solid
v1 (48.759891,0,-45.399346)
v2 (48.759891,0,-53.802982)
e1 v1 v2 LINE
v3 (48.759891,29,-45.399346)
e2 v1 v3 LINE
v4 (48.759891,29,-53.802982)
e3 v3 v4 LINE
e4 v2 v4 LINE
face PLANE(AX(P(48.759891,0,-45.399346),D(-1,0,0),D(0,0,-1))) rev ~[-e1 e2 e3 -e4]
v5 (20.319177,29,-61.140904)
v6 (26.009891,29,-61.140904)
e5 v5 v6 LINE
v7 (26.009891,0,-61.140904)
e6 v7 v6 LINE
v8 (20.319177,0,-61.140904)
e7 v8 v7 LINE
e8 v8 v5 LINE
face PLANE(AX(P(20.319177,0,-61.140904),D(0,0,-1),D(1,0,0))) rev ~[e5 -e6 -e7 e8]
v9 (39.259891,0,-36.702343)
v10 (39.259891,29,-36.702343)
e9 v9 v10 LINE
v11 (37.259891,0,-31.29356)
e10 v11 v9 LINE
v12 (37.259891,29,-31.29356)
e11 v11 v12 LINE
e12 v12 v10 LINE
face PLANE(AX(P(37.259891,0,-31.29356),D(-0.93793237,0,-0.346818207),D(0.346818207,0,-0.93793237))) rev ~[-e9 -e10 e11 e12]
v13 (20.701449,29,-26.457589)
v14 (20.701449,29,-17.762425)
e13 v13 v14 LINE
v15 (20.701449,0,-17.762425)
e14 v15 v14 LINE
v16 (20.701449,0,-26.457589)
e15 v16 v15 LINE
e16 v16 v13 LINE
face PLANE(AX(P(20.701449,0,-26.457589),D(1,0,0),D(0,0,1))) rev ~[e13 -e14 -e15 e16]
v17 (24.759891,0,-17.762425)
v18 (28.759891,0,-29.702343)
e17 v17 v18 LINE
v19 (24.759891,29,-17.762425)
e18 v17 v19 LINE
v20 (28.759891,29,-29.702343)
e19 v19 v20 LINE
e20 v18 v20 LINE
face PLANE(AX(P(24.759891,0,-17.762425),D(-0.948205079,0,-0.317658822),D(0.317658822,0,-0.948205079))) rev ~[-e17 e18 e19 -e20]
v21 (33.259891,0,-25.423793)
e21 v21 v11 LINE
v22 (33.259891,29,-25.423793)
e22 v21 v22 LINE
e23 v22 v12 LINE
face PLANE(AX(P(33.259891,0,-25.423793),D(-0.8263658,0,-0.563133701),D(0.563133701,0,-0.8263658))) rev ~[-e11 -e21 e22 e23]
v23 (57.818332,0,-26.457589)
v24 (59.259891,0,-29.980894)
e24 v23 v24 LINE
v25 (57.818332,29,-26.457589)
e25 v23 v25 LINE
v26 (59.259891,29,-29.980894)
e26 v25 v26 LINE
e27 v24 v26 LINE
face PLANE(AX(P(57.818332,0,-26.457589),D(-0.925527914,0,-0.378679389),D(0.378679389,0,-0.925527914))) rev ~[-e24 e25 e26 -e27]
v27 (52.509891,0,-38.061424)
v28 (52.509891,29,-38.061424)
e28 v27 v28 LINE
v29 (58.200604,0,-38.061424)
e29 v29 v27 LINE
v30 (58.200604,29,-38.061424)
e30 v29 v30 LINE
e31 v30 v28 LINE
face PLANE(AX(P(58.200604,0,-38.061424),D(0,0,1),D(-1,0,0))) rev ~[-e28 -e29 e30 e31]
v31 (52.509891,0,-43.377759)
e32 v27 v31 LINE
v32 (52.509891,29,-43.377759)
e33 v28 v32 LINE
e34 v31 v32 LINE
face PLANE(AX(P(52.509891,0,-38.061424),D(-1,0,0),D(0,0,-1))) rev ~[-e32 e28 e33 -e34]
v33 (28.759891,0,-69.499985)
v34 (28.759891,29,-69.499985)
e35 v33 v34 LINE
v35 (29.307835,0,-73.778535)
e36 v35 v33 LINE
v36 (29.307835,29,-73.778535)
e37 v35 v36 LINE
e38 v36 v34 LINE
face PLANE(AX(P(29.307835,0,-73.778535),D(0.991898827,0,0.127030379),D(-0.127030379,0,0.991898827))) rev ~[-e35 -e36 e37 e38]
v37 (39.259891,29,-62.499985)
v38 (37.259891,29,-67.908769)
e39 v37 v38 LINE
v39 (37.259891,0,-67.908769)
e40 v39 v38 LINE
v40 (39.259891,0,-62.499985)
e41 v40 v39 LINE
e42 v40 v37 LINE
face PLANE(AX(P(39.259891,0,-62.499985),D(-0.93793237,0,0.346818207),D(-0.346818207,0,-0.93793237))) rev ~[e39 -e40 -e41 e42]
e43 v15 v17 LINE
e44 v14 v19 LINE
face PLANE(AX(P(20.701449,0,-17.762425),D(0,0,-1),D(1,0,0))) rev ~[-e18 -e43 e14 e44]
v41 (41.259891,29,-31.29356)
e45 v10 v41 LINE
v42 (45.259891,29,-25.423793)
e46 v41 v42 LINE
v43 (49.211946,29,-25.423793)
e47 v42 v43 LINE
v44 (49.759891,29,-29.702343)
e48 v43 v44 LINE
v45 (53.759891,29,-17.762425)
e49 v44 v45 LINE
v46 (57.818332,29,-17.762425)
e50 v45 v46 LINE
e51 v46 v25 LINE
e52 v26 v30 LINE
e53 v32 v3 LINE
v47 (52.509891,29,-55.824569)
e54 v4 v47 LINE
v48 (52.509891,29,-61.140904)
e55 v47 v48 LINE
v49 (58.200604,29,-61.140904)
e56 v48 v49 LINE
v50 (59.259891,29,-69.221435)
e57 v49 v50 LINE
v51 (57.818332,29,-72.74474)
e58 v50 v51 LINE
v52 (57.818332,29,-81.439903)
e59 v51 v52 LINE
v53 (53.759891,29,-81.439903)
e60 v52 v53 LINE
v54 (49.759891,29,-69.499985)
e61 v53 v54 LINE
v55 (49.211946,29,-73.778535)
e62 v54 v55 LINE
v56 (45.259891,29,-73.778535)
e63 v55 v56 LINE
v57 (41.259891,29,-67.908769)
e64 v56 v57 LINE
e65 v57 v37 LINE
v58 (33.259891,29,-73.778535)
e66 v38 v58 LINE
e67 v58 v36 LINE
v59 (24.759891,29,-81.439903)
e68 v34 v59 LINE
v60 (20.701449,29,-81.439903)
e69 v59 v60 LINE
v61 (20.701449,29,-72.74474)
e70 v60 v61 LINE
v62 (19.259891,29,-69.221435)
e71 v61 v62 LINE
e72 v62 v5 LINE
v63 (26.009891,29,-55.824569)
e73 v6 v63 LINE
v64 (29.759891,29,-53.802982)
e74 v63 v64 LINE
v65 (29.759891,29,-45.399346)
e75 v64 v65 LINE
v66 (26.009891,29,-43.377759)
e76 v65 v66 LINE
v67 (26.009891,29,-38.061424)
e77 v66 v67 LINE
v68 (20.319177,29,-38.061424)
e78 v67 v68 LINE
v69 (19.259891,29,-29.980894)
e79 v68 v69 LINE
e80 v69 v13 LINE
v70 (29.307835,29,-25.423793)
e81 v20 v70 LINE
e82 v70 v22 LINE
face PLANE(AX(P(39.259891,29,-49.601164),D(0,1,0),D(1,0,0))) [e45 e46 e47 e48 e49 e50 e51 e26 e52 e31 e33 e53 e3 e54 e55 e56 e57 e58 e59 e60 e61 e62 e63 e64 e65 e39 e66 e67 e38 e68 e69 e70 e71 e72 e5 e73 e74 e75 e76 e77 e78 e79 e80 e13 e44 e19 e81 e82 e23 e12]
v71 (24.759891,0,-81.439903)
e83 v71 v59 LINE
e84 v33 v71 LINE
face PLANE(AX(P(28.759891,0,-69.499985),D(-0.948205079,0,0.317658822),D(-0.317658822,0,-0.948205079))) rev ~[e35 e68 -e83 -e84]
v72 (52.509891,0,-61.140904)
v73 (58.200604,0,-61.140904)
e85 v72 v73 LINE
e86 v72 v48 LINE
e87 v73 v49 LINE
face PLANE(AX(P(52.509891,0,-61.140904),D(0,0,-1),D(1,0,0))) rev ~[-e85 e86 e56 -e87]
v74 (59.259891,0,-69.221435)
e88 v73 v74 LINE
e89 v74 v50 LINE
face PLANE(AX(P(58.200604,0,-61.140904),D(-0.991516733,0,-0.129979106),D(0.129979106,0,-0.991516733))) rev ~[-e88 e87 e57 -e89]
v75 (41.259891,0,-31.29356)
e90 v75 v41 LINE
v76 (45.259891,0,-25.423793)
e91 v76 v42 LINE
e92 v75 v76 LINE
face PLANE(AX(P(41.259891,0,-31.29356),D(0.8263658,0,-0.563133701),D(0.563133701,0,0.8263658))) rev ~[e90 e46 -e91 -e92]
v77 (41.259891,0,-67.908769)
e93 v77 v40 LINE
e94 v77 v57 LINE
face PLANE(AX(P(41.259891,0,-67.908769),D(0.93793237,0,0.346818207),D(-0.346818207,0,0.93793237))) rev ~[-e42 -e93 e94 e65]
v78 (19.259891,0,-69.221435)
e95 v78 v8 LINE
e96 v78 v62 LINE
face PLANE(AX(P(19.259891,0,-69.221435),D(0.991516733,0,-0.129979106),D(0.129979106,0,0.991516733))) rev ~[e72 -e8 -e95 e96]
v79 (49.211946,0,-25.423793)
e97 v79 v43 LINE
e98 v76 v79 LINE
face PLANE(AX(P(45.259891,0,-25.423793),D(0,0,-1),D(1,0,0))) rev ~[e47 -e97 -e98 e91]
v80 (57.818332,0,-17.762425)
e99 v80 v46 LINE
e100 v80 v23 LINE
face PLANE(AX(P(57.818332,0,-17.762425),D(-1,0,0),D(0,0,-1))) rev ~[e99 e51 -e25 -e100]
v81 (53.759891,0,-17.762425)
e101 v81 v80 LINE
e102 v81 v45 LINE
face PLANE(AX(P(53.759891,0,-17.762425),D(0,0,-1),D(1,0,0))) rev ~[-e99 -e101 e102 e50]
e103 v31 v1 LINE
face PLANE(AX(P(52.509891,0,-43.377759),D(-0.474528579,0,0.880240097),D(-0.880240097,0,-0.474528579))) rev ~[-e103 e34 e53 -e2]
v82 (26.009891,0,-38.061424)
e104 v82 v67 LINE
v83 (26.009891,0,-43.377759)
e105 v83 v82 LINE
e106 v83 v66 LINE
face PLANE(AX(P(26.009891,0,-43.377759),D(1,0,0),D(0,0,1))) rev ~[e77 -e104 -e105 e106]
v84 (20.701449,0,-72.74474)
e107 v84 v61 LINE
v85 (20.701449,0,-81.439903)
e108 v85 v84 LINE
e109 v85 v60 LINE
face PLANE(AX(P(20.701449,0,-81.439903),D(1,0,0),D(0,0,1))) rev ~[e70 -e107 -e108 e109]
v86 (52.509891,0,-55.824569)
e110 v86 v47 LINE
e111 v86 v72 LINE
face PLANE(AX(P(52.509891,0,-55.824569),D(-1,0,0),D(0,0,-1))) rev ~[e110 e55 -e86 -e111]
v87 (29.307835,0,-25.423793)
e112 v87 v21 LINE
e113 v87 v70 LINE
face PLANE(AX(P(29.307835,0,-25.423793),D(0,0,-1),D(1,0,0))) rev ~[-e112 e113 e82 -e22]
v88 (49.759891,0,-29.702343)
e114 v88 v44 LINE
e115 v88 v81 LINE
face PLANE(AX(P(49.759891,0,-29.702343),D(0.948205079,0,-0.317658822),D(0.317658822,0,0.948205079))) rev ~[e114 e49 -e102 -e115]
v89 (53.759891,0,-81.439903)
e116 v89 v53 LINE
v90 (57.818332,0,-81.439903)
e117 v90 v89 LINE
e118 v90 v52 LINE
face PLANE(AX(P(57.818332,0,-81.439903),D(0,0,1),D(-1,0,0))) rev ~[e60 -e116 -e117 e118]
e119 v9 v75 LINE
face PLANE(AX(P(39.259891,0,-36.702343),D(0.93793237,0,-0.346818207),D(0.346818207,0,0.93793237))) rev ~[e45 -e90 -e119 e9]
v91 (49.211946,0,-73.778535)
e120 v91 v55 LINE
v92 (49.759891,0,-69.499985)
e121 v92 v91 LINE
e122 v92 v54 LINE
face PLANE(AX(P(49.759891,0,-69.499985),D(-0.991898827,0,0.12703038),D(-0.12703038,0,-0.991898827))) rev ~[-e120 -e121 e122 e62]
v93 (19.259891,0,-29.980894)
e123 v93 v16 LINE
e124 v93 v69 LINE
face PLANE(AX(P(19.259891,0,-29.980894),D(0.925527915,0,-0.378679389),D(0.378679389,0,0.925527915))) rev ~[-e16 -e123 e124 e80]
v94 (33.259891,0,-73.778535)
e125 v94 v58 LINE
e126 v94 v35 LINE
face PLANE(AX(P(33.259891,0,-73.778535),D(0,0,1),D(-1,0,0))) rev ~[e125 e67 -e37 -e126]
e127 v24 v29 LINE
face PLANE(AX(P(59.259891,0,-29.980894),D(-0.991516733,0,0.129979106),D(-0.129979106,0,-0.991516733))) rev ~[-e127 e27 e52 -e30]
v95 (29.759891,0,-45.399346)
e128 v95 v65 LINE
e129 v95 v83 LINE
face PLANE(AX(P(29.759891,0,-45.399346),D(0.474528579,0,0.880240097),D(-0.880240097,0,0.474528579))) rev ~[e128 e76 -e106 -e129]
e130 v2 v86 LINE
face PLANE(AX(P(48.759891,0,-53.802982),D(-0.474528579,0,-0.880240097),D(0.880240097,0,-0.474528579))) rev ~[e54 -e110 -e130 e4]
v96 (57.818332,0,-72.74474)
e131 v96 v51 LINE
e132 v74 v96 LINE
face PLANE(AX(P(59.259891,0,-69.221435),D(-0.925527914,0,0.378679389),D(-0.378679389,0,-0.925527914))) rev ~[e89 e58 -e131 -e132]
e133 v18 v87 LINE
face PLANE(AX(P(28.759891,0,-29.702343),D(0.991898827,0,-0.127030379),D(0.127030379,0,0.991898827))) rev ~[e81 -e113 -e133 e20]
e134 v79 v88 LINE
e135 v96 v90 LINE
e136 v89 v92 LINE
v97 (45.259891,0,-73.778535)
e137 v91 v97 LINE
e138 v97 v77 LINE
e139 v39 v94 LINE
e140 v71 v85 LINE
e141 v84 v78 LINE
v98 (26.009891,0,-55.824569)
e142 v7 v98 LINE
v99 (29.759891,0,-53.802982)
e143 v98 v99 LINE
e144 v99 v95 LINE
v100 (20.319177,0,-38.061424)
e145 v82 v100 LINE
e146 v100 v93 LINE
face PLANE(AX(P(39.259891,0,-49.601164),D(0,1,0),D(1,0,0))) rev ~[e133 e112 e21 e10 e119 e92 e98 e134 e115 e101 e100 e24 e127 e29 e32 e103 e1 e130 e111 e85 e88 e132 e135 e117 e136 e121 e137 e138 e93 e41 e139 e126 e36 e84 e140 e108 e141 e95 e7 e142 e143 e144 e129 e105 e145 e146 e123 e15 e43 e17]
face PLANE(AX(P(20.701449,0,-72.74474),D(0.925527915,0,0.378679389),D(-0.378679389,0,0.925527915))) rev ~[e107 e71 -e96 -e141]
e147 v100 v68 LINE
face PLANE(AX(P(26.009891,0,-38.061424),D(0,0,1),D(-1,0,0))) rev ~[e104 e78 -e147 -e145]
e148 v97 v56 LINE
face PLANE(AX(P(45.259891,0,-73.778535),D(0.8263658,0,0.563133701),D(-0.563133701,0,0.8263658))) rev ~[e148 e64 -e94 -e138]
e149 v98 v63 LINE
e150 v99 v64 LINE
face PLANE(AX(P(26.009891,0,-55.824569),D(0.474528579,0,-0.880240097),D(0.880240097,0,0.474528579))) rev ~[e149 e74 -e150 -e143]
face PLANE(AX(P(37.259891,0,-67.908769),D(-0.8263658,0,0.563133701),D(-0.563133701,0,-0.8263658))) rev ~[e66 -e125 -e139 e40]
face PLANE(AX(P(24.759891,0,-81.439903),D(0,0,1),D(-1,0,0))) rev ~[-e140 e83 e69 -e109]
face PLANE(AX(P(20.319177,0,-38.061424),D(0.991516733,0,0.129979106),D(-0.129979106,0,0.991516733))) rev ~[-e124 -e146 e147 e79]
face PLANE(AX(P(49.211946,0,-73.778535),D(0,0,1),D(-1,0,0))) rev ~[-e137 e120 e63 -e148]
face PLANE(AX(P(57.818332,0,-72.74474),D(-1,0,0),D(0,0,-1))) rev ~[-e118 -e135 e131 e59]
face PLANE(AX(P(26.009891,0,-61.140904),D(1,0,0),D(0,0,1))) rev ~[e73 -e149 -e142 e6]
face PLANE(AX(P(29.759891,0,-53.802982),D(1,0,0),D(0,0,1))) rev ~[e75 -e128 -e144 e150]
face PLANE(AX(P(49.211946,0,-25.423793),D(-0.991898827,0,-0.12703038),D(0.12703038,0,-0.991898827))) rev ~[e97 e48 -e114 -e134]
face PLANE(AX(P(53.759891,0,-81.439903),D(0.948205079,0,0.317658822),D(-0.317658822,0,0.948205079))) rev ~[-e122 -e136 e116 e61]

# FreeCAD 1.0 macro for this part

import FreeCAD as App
import Part
import Sketcher


def add_polygon(sketch, points):
    """Adds a closed chain of lines whose ends are joined by coincident constraints."""
    first, n = sketch.GeometryCount, len(points)
    for a, b in zip(points, points[1:] + points[:1]):
        sketch.addGeometry(Part.LineSegment(App.Vector(*a, 0), App.Vector(*b, 0)), False)
    for i in range(n):
        sketch.addConstraint(Sketcher.Constraint("Coincident", first + i, 2, first + (i + 1) % n, 1))

doc = App.newDocument("Part")
body = doc.addObject("PartDesign::Body", "Body")

# Sketch on XZ plane
sketch1 = body.newObject("Sketcher::SketchObject", "Sketch")
sketch1.AttachmentSupport = (doc.getObject("XZ_Plane"), [""])
sketch1.MapMode = "FlatFace"
add_polygon(sketch1, [(24.8, -17.8), (28.8, -29.7), (29.3, -25.4), (33.3, -25.4), (37.3, -31.3), (39.3, -36.7), (41.3, -31.3), (45.3, -25.4), (49.2, -25.4), (49.8, -29.7), (53.8, -17.8), (57.8, -17.8), (57.8, -26.5), (59.3, -30), (58.2, -38.1), (52.5, -38.1), (52.5, -43.4), (48.8, -45.4), (48.8, -53.8), (52.5, -55.8), (52.5, -61.1), (58.2, -61.1), (59.3, -69.2), (57.8, -72.7), (57.8, -81.4), (53.8, -81.4), (49.8, -69.5), (49.2, -73.8), (45.3, -73.8), (41.3, -67.9), (39.3, -62.5), (37.3, -67.9), (33.3, -73.8), (29.3, -73.8), (28.8, -69.5), (24.8, -81.4), (20.7, -81.4), (20.7, -72.7), (19.3, -69.2), (20.3, -61.1), (26, -61.1), (26, -55.8), (29.8, -53.8), (29.8, -45.4), (26, -43.4), (26, -38.1), (20.3, -38.1), (19.3, -30), (20.7, -26.5), (20.7, -17.8)])  # lines 0-49
sketch1.addConstraint([
    Sketcher.Constraint("Horizontal", 2),
    Sketcher.Constraint("Horizontal", 7),
    Sketcher.Constraint("Horizontal", 10),
    Sketcher.Constraint("Vertical", 11),
    Sketcher.Constraint("Horizontal", 14),
    Sketcher.Constraint("Vertical", 15),
    Sketcher.Constraint("Vertical", 17),
    Sketcher.Constraint("Vertical", 19),
    Sketcher.Constraint("Horizontal", 20),
    Sketcher.Constraint("Vertical", 23),
    Sketcher.Constraint("Horizontal", 24),
    Sketcher.Constraint("Horizontal", 27),
    Sketcher.Constraint("Horizontal", 32),
    Sketcher.Constraint("Horizontal", 35),
    Sketcher.Constraint("Vertical", 36),
    Sketcher.Constraint("Horizontal", 39),
    Sketcher.Constraint("Vertical", 40),
    Sketcher.Constraint("Vertical", 42),
    Sketcher.Constraint("Vertical", 44),
    Sketcher.Constraint("Horizontal", 45),
    Sketcher.Constraint("Vertical", 48),
    Sketcher.Constraint("Horizontal", 49),
    Sketcher.Constraint("Parallel", 0, 25),
    Sketcher.Constraint("Parallel", 1, 26),
    Sketcher.Constraint("Parallel", 3, 28),
    Sketcher.Constraint("Parallel", 4, 29),
    Sketcher.Constraint("Parallel", 5, 30),
    Sketcher.Constraint("Parallel", 6, 31),
    Sketcher.Constraint("Parallel", 8, 33),
    Sketcher.Constraint("Parallel", 9, 34),
    Sketcher.Constraint("Parallel", 12, 37),
    Sketcher.Constraint("Parallel", 13, 38),
    Sketcher.Constraint("Parallel", 16, 41),
    Sketcher.Constraint("Parallel", 18, 43),
    Sketcher.Constraint("Parallel", 21, 46),
    Sketcher.Constraint("Parallel", 22, 47),
    Sketcher.Constraint("Horizontal", 3, 2, 5, 2),
    Sketcher.Constraint("Horizontal", 2, 2, 6, 2),
    Sketcher.Constraint("Horizontal", 0, 2, 8, 2),
    Sketcher.Constraint("Horizontal", 28, 2, 30, 2),
    Sketcher.Constraint("Horizontal", 27, 2, 31, 2),
    Sketcher.Constraint("Horizontal", 25, 2, 33, 2),
    Sketcher.Constraint("Horizontal", 24, 2, 34, 2),
    Sketcher.Constraint("Horizontal", 22, 2, 36, 2),
    Sketcher.Constraint("Horizontal", 21, 2, 37, 2),
    Sketcher.Constraint("Horizontal", 20, 2, 38, 2),
    Sketcher.Constraint("Horizontal", 18, 2, 40, 2),
    Sketcher.Constraint("Horizontal", 17, 2, 41, 2),
    Sketcher.Constraint("Horizontal", 16, 2, 42, 2),
    Sketcher.Constraint("Horizontal", 15, 2, 43, 2),
    Sketcher.Constraint("Horizontal", 14, 2, 44, 2),
    Sketcher.Constraint("Horizontal", 12, 2, 46, 2),
    Sketcher.Constraint("Horizontal", 11, 2, 47, 2),
    Sketcher.Constraint("Horizontal", 10, 2, 48, 2),
    Sketcher.Constraint("Vertical", 15, 2, 18, 2),
    Sketcher.Constraint("Vertical", 13, 2, 20, 2),
    Sketcher.Constraint("Vertical", 12, 2, 21, 2),
    Sketcher.Constraint("Vertical", 11, 2, 22, 2),
    Sketcher.Constraint("Vertical", 9, 2, 24, 2),
    Sketcher.Constraint("Vertical", 8, 2, 25, 2),
    Sketcher.Constraint("Vertical", 7, 2, 26, 2),
    Sketcher.Constraint("Vertical", 6, 2, 27, 2),
    Sketcher.Constraint("Vertical", 5, 2, 28, 2),
    Sketcher.Constraint("Vertical", 4, 2, 29, 2),
    Sketcher.Constraint("Vertical", 3, 2, 30, 2),
    Sketcher.Constraint("Vertical", 2, 2, 31, 2),
    Sketcher.Constraint("Vertical", 1, 2, 32, 2),
    Sketcher.Constraint("Vertical", 0, 2, 33, 2),
    Sketcher.Constraint("Vertical", 40, 2, 43, 2),
    Sketcher.Constraint("Vertical", 38, 2, 45, 2),
    Sketcher.Constraint("Vertical", 37, 2, 46, 2),
    Sketcher.Constraint("Vertical", 36, 2, 47, 2),
    Sketcher.Constraint("Vertical", 34, 2, 49, 2),
    Sketcher.Constraint("Equal", 2, 7),
    Sketcher.Constraint("Equal", 24, 35),
    Sketcher.Constraint("Equal", 20, 39),
    Sketcher.Constraint("Equal", 15, 19),
    Sketcher.Constraint("Equal", 11, 23),
    Sketcher.Constraint("DistanceX", 2, 2, 3, 2, 4.0),
    Sketcher.Constraint("DistanceX", 3, 2, 4, 2, 2.0),
    Sketcher.Constraint("DistanceY", 4, 2, 0, 2, 7.0),
    Sketcher.Constraint("DistanceX", 8, 2, 9, 2, 4.0),
    Sketcher.Constraint("DistanceX", 16, 2, 8, 2, 1.0),
    Sketcher.Constraint("DistanceX", 46, 2, 2, 2, 14.0),
    Sketcher.Constraint("DistanceX", 0, 2, 2, 2, 4.5),
    Sketcher.Constraint("DistanceX", 8, 2, 14, 2, 2.75),
    Sketcher.Constraint("DistanceY", 23, 2, 20, 2, 20.298999),
    Sketcher.Constraint("Distance", 16, 4.260201),
    Sketcher.Constraint("DistanceX", 10, 1, 10, 2, 4.058441),
    Sketcher.Constraint("DistanceY", 12, 2, 7, 2, 4.5571),
    Sketcher.Constraint("Distance", 3, 7.103109),
    Sketcher.Constraint("Distance", 4, 5.76671),
    Sketcher.Constraint("DistanceX", 2, 1, 2, 2, 3.952055),
    Sketcher.Constraint("DistanceX", 14, 2, 14, 1, 5.690714),
    Sketcher.Constraint("DistanceY", 11, 2, 11, 1, 8.695163),
    Sketcher.Constraint("DistanceY", 15, 2, 15, 1, 5.316335),
    Sketcher.Constraint("DistanceY", 17, 2, 17, 1, 8.403636),
    Sketcher.Constraint("DistanceX", -1, 1, 0, 2, 28.759891),
    Sketcher.Constraint("DistanceY", 3, 2, -1, 1, 31.29356),
    Sketcher.Constraint("DistanceY", 11, 2, -1, 1, 26.457589),
])
pad1 = body.newObject("PartDesign::Pad", "Pad")
pad1.Profile = sketch1
pad1.Length = 29
pad1.Reversed = True

doc.recompute()
